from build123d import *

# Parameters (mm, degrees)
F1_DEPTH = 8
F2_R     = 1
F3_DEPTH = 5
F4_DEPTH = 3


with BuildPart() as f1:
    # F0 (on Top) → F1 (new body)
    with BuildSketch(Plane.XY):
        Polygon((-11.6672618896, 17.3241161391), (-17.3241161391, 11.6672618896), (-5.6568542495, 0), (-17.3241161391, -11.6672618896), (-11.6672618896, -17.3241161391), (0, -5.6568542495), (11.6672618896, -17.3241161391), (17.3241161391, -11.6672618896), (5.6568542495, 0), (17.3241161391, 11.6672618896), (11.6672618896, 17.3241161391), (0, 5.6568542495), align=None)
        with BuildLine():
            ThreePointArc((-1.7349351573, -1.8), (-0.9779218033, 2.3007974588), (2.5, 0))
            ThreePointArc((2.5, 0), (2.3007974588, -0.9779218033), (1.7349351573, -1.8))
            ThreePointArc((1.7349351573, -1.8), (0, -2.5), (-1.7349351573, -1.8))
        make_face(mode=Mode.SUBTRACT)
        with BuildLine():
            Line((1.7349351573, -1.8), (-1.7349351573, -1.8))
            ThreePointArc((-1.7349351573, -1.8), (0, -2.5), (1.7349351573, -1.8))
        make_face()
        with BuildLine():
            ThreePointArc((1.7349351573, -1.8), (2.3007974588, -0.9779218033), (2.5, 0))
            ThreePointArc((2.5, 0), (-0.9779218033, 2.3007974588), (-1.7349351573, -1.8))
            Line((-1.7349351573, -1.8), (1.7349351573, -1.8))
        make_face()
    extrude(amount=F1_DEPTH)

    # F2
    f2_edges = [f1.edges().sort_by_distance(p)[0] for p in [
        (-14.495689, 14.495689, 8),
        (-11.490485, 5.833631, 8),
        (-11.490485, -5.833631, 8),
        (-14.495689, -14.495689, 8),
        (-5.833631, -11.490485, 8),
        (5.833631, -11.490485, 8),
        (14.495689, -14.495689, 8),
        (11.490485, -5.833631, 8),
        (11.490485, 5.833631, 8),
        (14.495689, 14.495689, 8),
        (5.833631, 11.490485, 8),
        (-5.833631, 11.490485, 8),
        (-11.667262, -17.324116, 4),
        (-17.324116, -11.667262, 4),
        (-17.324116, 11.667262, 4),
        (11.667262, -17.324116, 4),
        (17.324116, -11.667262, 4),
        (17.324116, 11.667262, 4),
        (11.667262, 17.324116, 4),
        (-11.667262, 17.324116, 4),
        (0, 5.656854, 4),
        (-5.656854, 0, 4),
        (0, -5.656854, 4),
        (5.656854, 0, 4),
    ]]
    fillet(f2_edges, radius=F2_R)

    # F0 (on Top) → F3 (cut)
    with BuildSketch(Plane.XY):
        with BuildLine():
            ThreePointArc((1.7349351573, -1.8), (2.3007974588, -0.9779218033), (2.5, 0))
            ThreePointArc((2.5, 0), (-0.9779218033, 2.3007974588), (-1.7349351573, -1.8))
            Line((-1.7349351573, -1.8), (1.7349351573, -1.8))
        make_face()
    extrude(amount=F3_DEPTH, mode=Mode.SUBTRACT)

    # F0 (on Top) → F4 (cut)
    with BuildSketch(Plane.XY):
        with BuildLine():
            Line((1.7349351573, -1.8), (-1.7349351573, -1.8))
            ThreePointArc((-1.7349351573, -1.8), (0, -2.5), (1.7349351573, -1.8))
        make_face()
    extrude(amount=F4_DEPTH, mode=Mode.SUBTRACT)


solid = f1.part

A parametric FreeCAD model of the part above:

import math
import FreeCAD as App
import Part
import Sketcher

V = App.Vector


def edges_at(feature, points):
    """Names of the edges that pass closest to the given points."""
    edges = feature.Shape.Edges
    near = lambda p: min(range(len(edges)), key=lambda i: edges[i].distToShape(Part.Vertex(*p))[0])
    return sorted({f"Edge{near(p) + 1}" for p in points})

doc = App.newDocument("Part")
params = doc.addObject("Spreadsheet::Sheet", "Params")
for row, (alias, value) in enumerate([
    ("sketch1_length", "8 mm"),
    ("sketch1_length2", "16.5 mm"),
    ("pad1_length", "8 mm"),
    ("fillet_radius", "1 mm"),
    ("sketch2_radius", "2.5 mm"),
    ("pocket1_length", "5 mm"),
    ("sketch3_radius", "2.5 mm"),
    ("pocket2_length", "3 mm"),
], start=1):
    params.set(f"A{row}", alias)
    params.set(f"B{row}", "=" + value)
    params.setAlias(f"B{row}", alias)

body = doc.addObject("PartDesign::Body", "Body")

# Sketch on XY plane
sketch1 = body.newObject("Sketcher::SketchObject", "Sketch")
sketch1.AttachmentSupport = (doc.getObject("XY_Plane"), [""])
sketch1.MapMode = "FlatFace"
sketch1.addGeometry(Part.LineSegment(V(-12, 17, 0), V(-17, 12, 0)), False)
sketch1.addGeometry(Part.LineSegment(V(-17, 12, 0), V(-6, 0, 0)), False)
sketch1.addGeometry(Part.LineSegment(V(-6, 0, 0), V(-17, -12, 0)), False)
sketch1.addGeometry(Part.LineSegment(V(-17, -12, 0), V(-12, -17, 0)), False)
sketch1.addGeometry(Part.LineSegment(V(-12, -17, 0), V(0, -6, 0)), False)
sketch1.addGeometry(Part.LineSegment(V(0, -6, 0), V(12, -17, 0)), False)
sketch1.addGeometry(Part.LineSegment(V(12, -17, 0), V(17, -12, 0)), False)
sketch1.addGeometry(Part.LineSegment(V(17, -12, 0), V(6, 0, 0)), False)
sketch1.addGeometry(Part.LineSegment(V(6, 0, 0), V(17, 12, 0)), False)
sketch1.addGeometry(Part.LineSegment(V(17, 12, 0), V(12, 17, 0)), False)
sketch1.addGeometry(Part.LineSegment(V(12, 17, 0), V(0, 6, 0)), False)
sketch1.addGeometry(Part.LineSegment(V(0, 6, 0), V(-12, 17, 0)), False)
sketch1.addConstraint(Sketcher.Constraint("Coincident", 0, 2, 1, 1))
sketch1.addConstraint(Sketcher.Constraint("Coincident", 1, 2, 2, 1))
sketch1.addConstraint(Sketcher.Constraint("Coincident", 2, 2, 3, 1))
sketch1.addConstraint(Sketcher.Constraint("Coincident", 3, 2, 4, 1))
sketch1.addConstraint(Sketcher.Constraint("Coincident", 4, 2, 5, 1))
sketch1.addConstraint(Sketcher.Constraint("Coincident", 5, 2, 6, 1))
sketch1.addConstraint(Sketcher.Constraint("Coincident", 6, 2, 7, 1))
sketch1.addConstraint(Sketcher.Constraint("Coincident", 7, 2, 8, 1))
sketch1.addConstraint(Sketcher.Constraint("Coincident", 8, 2, 9, 1))
sketch1.addConstraint(Sketcher.Constraint("Coincident", 9, 2, 10, 1))
sketch1.addConstraint(Sketcher.Constraint("Coincident", 10, 2, 11, 1))
sketch1.addConstraint(Sketcher.Constraint("Coincident", 11, 2, 0, 1))
sketch1.addConstraint(Sketcher.Constraint("Symmetric", 0, 2, 6, 2, -1, 1))
sketch1.addConstraint(Sketcher.Constraint("Symmetric", 1, 2, 7, 2, -1, 1))
sketch1.addConstraint(Sketcher.Constraint("Symmetric", 2, 2, 8, 2, -1, 1))
sketch1.addConstraint(Sketcher.Constraint("Symmetric", 3, 2, 9, 2, -1, 1))
sketch1.addConstraint(Sketcher.Constraint("Symmetric", 4, 2, 10, 2, -1, 1))
sketch1.addConstraint(Sketcher.Constraint("Symmetric", 5, 2, 11, 2, -1, 1))
sketch1.addConstraint(Sketcher.Constraint("Symmetric", 3, 2, 5, 2, -2))
sketch1.addConstraint(Sketcher.Constraint("Symmetric", 2, 2, 6, 2, -2))
sketch1.addConstraint(Sketcher.Constraint("PointOnObject", 1, 2, -1))
sketch1.addConstraint(Sketcher.Constraint("PointOnObject", 4, 2, -2))
sketch1.addConstraint(Sketcher.Constraint("Perpendicular", 0, 1))
sketch1.addConstraint(Sketcher.Constraint("Perpendicular", 1, 2))
sketch1.addConstraint(Sketcher.Constraint("Perpendicular", 3, 4))
sketch1.addConstraint(Sketcher.Constraint("Equal", 2, 4))
sketch1.addConstraint(Sketcher.Constraint("Distance", 0, 8.0))
sketch1.addConstraint(Sketcher.Constraint("Distance", 1, 16.5))
sketch1.setExpression("Constraints[26]", "Params.sketch1_length")
sketch1.setExpression("Constraints[27]", "Params.sketch1_length2")
pad1 = body.newObject("PartDesign::Pad", "Pad")
pad1.Profile = sketch1
pad1.setExpression("Length", "Params.pad1_length")
doc.recompute()

fillet = body.newObject("PartDesign::Fillet", "Fillet")
fillet.Base = (pad1, edges_at(pad1, [
    (-14.496, 14.496, 8),
    (-11.49, 5.834, 8),
    (-11.49, -5.834, 8),
    (-14.496, -14.496, 8),
    (-5.834, -11.49, 8),
    (5.834, -11.49, 8),
    (14.496, -14.496, 8),
    (11.49, -5.834, 8),
    (11.49, 5.834, 8),
    (14.496, 14.496, 8),
    (5.834, 11.49, 8),
    (-5.834, 11.49, 8),
    (-11.667, -17.324, 4),
    (-17.324, -11.667, 4),
    (-17.324, 11.667, 4),
    (11.667, -17.324, 4),
    (17.324, -11.667, 4),
    (17.324, 11.667, 4),
    (11.667, 17.324, 4),
    (-11.667, 17.324, 4),
    (0, 5.657, 4),
    (-5.657, 0, 4),
    (0, -5.657, 4),
    (5.657, 0, 4),
]))
fillet.setExpression("Radius", "Params.fillet_radius")

# Sketch on XY plane
sketch2 = body.newObject("Sketcher::SketchObject", "Sketch001")
sketch2.AttachmentSupport = (doc.getObject("XY_Plane"), [""])
sketch2.MapMode = "FlatFace"
sketch2.addGeometry(Part.ArcOfCircle(Part.Circle(V(0, 0, 0), V(0, 0, 1), 2.5), math.radians(-46), math.radians(0)), False)
sketch2.addGeometry(Part.ArcOfCircle(Part.Circle(V(0, 0, 0), V(0, 0, 1), 2.5), math.radians(0), math.radians(226)), False)
sketch2.addGeometry(Part.LineSegment(V(-1.7, -1.8, 0), V(1.7, -1.8, 0)), False)
sketch2.addConstraint(Sketcher.Constraint("Tangent", 0, 2, 1, 1))
sketch2.addConstraint(Sketcher.Constraint("Coincident", 1, 2, 2, 1))
sketch2.addConstraint(Sketcher.Constraint("Coincident", 2, 2, 0, 1))
sketch2.addConstraint(Sketcher.Constraint("Horizontal", 2))
sketch2.addConstraint(Sketcher.Constraint("Coincident", 0, 3, -1, 1))
sketch2.addConstraint(Sketcher.Constraint("Equal", 0, 1))
sketch2.addConstraint(Sketcher.Constraint("PointOnObject", 0, 2, -1))
sketch2.addConstraint(Sketcher.Constraint("Radius", 0, 2.5))
sketch2.addConstraint(Sketcher.Constraint("DistanceY", 1, 2, -1, 1, 1.8))
sketch2.setExpression("Constraints[7]", "Params.sketch2_radius")
pocket1 = body.newObject("PartDesign::Pocket", "Pocket")
pocket1.Profile = sketch2
pocket1.setExpression("Length", "Params.pocket1_length")
pocket1.Reversed = True

# Sketch on XY plane
sketch3 = body.newObject("Sketcher::SketchObject", "Sketch002")
sketch3.AttachmentSupport = (doc.getObject("XY_Plane"), [""])
sketch3.MapMode = "FlatFace"
sketch3.addGeometry(Part.LineSegment(V(1.7, -1.8, 0), V(-1.7, -1.8, 0)), False)
sketch3.addGeometry(Part.ArcOfCircle(Part.Circle(V(0, 0, 0), V(0, 0, 1), 2.5), math.radians(-134), math.radians(-46)), False)
sketch3.addConstraint(Sketcher.Constraint("Coincident", 0, 1, 1, 2))
sketch3.addConstraint(Sketcher.Constraint("Coincident", 1, 1, 0, 2))
sketch3.addConstraint(Sketcher.Constraint("Horizontal", 0))
sketch3.addConstraint(Sketcher.Constraint("Coincident", 1, 3, -1, 1))
sketch3.addConstraint(Sketcher.Constraint("Radius", 1, 2.5))
sketch3.addConstraint(Sketcher.Constraint("DistanceY", 0, 1, -1, 1, 1.8))
sketch3.setExpression("Constraints[4]", "Params.sketch3_radius")
pocket2 = body.newObject("PartDesign::Pocket", "Pocket001")
pocket2.Profile = sketch3
pocket2.setExpression("Length", "Params.pocket2_length")
pocket2.Reversed = True

doc.recompute()
